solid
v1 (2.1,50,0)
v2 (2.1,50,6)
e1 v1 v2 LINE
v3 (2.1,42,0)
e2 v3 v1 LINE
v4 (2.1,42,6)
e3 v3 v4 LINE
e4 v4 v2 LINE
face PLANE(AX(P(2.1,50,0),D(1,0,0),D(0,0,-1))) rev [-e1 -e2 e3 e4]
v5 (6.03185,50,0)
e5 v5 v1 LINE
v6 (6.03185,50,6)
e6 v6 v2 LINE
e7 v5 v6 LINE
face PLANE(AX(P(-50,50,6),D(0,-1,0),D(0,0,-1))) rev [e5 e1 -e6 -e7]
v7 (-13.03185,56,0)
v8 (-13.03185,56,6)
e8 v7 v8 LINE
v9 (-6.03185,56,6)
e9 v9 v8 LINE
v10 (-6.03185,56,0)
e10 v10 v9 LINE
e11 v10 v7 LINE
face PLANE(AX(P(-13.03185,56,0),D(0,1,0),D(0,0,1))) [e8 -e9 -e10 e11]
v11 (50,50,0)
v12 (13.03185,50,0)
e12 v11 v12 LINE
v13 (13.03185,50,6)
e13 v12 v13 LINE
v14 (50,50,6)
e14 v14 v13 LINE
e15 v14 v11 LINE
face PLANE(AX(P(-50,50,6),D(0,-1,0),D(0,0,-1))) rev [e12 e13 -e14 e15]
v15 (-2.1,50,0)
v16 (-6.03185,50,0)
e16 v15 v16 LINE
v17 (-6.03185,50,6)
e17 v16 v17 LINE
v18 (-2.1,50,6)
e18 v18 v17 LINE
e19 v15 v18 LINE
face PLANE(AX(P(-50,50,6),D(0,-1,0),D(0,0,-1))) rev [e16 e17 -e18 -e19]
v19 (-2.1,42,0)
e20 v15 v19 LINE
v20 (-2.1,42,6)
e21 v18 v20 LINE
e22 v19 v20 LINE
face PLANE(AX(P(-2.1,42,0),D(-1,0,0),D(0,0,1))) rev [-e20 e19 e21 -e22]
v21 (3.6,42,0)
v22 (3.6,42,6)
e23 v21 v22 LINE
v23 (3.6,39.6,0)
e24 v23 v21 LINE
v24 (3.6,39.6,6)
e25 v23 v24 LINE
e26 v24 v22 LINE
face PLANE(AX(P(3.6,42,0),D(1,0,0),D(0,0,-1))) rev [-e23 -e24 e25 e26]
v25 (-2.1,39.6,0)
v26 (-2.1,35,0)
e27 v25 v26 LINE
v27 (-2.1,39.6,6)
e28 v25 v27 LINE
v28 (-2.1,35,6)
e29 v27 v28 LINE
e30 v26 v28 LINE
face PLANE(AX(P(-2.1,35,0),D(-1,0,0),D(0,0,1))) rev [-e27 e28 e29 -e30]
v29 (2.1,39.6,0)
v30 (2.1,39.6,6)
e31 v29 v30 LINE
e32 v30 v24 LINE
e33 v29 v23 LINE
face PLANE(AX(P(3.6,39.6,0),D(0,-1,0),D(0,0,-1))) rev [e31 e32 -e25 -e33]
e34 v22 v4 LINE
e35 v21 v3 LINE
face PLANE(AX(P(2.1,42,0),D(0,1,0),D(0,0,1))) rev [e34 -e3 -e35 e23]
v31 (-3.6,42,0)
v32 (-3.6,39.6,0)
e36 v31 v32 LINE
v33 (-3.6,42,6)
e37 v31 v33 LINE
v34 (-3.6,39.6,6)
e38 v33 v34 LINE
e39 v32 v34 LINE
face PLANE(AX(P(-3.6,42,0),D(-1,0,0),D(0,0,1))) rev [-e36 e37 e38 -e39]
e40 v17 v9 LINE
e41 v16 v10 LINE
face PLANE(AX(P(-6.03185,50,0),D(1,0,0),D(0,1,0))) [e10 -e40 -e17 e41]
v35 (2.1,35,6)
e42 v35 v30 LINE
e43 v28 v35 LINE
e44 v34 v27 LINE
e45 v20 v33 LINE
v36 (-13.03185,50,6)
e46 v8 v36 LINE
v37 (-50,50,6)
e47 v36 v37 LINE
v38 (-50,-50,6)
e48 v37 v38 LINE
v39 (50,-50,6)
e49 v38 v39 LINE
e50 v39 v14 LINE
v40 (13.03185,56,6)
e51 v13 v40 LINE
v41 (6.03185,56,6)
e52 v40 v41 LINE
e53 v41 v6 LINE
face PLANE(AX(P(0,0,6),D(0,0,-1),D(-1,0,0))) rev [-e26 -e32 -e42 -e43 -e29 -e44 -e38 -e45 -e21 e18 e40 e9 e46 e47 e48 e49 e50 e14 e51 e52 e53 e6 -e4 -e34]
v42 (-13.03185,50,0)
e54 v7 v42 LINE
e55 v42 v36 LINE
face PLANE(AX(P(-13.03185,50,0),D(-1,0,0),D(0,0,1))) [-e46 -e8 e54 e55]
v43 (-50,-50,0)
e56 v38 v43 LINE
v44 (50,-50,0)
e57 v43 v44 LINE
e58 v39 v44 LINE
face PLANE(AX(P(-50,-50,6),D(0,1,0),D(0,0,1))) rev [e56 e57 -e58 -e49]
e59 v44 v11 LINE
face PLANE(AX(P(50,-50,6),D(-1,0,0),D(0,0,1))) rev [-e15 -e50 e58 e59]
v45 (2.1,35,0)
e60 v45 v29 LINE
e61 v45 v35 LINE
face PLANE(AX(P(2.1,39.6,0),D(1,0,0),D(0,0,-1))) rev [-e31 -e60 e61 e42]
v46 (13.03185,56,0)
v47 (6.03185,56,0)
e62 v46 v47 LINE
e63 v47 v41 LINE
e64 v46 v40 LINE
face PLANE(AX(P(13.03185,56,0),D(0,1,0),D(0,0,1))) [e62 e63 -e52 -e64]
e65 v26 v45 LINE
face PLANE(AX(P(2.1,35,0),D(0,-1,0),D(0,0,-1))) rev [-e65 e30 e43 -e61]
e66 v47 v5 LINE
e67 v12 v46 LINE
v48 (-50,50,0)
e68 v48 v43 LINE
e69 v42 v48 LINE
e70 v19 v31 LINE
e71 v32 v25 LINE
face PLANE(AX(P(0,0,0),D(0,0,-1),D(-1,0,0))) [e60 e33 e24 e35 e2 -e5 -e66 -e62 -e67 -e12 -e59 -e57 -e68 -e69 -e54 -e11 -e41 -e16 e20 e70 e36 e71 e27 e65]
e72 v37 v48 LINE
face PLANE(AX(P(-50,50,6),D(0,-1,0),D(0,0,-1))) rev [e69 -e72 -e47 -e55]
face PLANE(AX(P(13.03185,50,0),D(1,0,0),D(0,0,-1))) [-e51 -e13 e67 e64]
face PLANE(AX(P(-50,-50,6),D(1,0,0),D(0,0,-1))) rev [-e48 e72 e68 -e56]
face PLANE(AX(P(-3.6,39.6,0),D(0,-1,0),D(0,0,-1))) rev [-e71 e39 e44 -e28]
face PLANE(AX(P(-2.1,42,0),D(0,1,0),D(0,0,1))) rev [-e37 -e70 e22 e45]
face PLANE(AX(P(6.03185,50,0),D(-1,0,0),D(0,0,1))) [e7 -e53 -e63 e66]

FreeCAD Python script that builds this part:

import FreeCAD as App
import Part
import Sketcher
from FreeCAD import Vector


def add_polygon(sketch, points):
    """Adds a closed chain of lines whose ends are joined by coincident constraints."""
    first, n = sketch.GeometryCount, len(points)
    for a, b in zip(points, points[1:] + points[:1]):
        sketch.addGeometry(Part.LineSegment(App.Vector(*a, 0), App.Vector(*b, 0)), False)
    for i in range(n):
        sketch.addConstraint(Sketcher.Constraint("Coincident", first + i, 2, first + (i + 1) % n, 1))

doc = App.newDocument("Part")
body = doc.addObject("PartDesign::Body", "Body")

# Sketch on XY plane
sketch1 = body.newObject("Sketcher::SketchObject", "Sketch")
sketch1.AttachmentSupport = (doc.getObject("XY_Plane"), [""])
sketch1.MapMode = "FlatFace"
add_polygon(sketch1, [(-50, 50), (-50, -50), (50, -50), (50, 50)])  # lines 0-3
sketch1.addConstraint([
    Sketcher.Constraint("Vertical", 0),
    Sketcher.Constraint("Horizontal", 1),
    Sketcher.Constraint("Vertical", 2),
    Sketcher.Constraint("Horizontal", 3),
    Sketcher.Constraint("Symmetric", 0, 2, 2, 2, -1, 1),
    Sketcher.Constraint("Equal", 3, 0),
    Sketcher.Constraint("DistanceX", 1, 1, 1, 2, 100.0),
])
pad1 = body.newObject("PartDesign::Pad", "Pad")
pad1.Profile = sketch1
pad1.Length = 6

# Sketch on XY plane
sketch2 = body.newObject("Sketcher::SketchObject", "Sketch001")
sketch2.AttachmentSupport = (doc.getObject("XY_Plane"), [""])
sketch2.MapMode = "FlatFace"
sketch2.AttachmentOffset = App.Placement(Vector(0, 0, 6), App.Rotation())
add_polygon(sketch2, [(-13, 56), (-13, 50), (-6, 50), (-6, 56)])  # lines 0-3
add_polygon(sketch2, [(6, 56), (6, 50), (13, 50), (13, 56)])  # lines 4-7
sketch2.addConstraint([
    Sketcher.Constraint("Vertical", 0),
    Sketcher.Constraint("Horizontal", 1),
    Sketcher.Constraint("Vertical", 2),
    Sketcher.Constraint("Horizontal", 3),
    Sketcher.Constraint("Vertical", 4),
    Sketcher.Constraint("Horizontal", 5),
    Sketcher.Constraint("Vertical", 6),
    Sketcher.Constraint("Horizontal", 7),
    Sketcher.Constraint("Symmetric", 1, 2, 4, 2, -2),
    Sketcher.Constraint("Symmetric", 3, 2, 6, 2, -2),
    Sketcher.Constraint("DistanceX", 1, 1, 1, 2, 7.0),
    Sketcher.Constraint("DistanceY", 0, 2, 0, 1, 6.0),
    Sketcher.Constraint("DistanceY", -1, 1, 0, 2, 50.0),
    Sketcher.Constraint("DistanceX", 1, 2, 4, 2, 12.0637),
])
pad2 = body.newObject("PartDesign::Pad", "Pad001")
pad2.Profile = sketch2
pad2.Length = 6
pad2.Reversed = True

# Sketch on XY plane
sketch3 = body.newObject("Sketcher::SketchObject", "Sketch002")
sketch3.AttachmentSupport = (doc.getObject("XY_Plane"), [""])
sketch3.MapMode = "FlatFace"
sketch3.AttachmentOffset = App.Placement(Vector(0, 0, 6), App.Rotation())
add_polygon(sketch3, [(-2.1, 42), (-3.6, 42), (-3.6, 39.6), (-2.1, 39.6), (-2.1, 35), (2.1, 35), (2.1, 39.6), (3.6, 39.6), (3.6, 42), (2.1, 42), (2.1, 50), (-2.1, 50)])  # lines 0-11
sketch3.addConstraint([
    Sketcher.Constraint("Horizontal", 0),
    Sketcher.Constraint("Vertical", 1),
    Sketcher.Constraint("Horizontal", 2),
    Sketcher.Constraint("Vertical", 3),
    Sketcher.Constraint("Horizontal", 4),
    Sketcher.Constraint("Vertical", 5),
    Sketcher.Constraint("Horizontal", 6),
    Sketcher.Constraint("Vertical", 7),
    Sketcher.Constraint("Horizontal", 8),
    Sketcher.Constraint("Vertical", 9),
    Sketcher.Constraint("Horizontal", 10),
    Sketcher.Constraint("Vertical", 11),
    Sketcher.Constraint("Symmetric", 2, 2, 5, 2, -2),
    Sketcher.Constraint("Symmetric", 0, 2, 7, 2, -2),
    Sketcher.Constraint("Vertical", 5, 2, 8, 2),
    Sketcher.Constraint("Vertical", 3, 2, 10, 2),
    Sketcher.Constraint("DistanceY", 9, 1, 9, 2, 8.0),
    Sketcher.Constraint("DistanceX", 0, 2, 0, 1, 1.5),
    Sketcher.Constraint("DistanceX", 4, 1, 4, 2, 4.2),
    Sketcher.Constraint("DistanceY", 1, 2, 1, 1, 2.4),
    Sketcher.Constraint("DistanceY", 3, 2, 3, 1, 4.6),
    Sketcher.Constraint("DistanceY", -1, 1, 0, 2, 42.0),
])
pocket1 = body.newObject("PartDesign::Pocket", "Pocket")
pocket1.Profile = sketch3
pocket1.Type = "ThroughAll"

doc.recompute()
